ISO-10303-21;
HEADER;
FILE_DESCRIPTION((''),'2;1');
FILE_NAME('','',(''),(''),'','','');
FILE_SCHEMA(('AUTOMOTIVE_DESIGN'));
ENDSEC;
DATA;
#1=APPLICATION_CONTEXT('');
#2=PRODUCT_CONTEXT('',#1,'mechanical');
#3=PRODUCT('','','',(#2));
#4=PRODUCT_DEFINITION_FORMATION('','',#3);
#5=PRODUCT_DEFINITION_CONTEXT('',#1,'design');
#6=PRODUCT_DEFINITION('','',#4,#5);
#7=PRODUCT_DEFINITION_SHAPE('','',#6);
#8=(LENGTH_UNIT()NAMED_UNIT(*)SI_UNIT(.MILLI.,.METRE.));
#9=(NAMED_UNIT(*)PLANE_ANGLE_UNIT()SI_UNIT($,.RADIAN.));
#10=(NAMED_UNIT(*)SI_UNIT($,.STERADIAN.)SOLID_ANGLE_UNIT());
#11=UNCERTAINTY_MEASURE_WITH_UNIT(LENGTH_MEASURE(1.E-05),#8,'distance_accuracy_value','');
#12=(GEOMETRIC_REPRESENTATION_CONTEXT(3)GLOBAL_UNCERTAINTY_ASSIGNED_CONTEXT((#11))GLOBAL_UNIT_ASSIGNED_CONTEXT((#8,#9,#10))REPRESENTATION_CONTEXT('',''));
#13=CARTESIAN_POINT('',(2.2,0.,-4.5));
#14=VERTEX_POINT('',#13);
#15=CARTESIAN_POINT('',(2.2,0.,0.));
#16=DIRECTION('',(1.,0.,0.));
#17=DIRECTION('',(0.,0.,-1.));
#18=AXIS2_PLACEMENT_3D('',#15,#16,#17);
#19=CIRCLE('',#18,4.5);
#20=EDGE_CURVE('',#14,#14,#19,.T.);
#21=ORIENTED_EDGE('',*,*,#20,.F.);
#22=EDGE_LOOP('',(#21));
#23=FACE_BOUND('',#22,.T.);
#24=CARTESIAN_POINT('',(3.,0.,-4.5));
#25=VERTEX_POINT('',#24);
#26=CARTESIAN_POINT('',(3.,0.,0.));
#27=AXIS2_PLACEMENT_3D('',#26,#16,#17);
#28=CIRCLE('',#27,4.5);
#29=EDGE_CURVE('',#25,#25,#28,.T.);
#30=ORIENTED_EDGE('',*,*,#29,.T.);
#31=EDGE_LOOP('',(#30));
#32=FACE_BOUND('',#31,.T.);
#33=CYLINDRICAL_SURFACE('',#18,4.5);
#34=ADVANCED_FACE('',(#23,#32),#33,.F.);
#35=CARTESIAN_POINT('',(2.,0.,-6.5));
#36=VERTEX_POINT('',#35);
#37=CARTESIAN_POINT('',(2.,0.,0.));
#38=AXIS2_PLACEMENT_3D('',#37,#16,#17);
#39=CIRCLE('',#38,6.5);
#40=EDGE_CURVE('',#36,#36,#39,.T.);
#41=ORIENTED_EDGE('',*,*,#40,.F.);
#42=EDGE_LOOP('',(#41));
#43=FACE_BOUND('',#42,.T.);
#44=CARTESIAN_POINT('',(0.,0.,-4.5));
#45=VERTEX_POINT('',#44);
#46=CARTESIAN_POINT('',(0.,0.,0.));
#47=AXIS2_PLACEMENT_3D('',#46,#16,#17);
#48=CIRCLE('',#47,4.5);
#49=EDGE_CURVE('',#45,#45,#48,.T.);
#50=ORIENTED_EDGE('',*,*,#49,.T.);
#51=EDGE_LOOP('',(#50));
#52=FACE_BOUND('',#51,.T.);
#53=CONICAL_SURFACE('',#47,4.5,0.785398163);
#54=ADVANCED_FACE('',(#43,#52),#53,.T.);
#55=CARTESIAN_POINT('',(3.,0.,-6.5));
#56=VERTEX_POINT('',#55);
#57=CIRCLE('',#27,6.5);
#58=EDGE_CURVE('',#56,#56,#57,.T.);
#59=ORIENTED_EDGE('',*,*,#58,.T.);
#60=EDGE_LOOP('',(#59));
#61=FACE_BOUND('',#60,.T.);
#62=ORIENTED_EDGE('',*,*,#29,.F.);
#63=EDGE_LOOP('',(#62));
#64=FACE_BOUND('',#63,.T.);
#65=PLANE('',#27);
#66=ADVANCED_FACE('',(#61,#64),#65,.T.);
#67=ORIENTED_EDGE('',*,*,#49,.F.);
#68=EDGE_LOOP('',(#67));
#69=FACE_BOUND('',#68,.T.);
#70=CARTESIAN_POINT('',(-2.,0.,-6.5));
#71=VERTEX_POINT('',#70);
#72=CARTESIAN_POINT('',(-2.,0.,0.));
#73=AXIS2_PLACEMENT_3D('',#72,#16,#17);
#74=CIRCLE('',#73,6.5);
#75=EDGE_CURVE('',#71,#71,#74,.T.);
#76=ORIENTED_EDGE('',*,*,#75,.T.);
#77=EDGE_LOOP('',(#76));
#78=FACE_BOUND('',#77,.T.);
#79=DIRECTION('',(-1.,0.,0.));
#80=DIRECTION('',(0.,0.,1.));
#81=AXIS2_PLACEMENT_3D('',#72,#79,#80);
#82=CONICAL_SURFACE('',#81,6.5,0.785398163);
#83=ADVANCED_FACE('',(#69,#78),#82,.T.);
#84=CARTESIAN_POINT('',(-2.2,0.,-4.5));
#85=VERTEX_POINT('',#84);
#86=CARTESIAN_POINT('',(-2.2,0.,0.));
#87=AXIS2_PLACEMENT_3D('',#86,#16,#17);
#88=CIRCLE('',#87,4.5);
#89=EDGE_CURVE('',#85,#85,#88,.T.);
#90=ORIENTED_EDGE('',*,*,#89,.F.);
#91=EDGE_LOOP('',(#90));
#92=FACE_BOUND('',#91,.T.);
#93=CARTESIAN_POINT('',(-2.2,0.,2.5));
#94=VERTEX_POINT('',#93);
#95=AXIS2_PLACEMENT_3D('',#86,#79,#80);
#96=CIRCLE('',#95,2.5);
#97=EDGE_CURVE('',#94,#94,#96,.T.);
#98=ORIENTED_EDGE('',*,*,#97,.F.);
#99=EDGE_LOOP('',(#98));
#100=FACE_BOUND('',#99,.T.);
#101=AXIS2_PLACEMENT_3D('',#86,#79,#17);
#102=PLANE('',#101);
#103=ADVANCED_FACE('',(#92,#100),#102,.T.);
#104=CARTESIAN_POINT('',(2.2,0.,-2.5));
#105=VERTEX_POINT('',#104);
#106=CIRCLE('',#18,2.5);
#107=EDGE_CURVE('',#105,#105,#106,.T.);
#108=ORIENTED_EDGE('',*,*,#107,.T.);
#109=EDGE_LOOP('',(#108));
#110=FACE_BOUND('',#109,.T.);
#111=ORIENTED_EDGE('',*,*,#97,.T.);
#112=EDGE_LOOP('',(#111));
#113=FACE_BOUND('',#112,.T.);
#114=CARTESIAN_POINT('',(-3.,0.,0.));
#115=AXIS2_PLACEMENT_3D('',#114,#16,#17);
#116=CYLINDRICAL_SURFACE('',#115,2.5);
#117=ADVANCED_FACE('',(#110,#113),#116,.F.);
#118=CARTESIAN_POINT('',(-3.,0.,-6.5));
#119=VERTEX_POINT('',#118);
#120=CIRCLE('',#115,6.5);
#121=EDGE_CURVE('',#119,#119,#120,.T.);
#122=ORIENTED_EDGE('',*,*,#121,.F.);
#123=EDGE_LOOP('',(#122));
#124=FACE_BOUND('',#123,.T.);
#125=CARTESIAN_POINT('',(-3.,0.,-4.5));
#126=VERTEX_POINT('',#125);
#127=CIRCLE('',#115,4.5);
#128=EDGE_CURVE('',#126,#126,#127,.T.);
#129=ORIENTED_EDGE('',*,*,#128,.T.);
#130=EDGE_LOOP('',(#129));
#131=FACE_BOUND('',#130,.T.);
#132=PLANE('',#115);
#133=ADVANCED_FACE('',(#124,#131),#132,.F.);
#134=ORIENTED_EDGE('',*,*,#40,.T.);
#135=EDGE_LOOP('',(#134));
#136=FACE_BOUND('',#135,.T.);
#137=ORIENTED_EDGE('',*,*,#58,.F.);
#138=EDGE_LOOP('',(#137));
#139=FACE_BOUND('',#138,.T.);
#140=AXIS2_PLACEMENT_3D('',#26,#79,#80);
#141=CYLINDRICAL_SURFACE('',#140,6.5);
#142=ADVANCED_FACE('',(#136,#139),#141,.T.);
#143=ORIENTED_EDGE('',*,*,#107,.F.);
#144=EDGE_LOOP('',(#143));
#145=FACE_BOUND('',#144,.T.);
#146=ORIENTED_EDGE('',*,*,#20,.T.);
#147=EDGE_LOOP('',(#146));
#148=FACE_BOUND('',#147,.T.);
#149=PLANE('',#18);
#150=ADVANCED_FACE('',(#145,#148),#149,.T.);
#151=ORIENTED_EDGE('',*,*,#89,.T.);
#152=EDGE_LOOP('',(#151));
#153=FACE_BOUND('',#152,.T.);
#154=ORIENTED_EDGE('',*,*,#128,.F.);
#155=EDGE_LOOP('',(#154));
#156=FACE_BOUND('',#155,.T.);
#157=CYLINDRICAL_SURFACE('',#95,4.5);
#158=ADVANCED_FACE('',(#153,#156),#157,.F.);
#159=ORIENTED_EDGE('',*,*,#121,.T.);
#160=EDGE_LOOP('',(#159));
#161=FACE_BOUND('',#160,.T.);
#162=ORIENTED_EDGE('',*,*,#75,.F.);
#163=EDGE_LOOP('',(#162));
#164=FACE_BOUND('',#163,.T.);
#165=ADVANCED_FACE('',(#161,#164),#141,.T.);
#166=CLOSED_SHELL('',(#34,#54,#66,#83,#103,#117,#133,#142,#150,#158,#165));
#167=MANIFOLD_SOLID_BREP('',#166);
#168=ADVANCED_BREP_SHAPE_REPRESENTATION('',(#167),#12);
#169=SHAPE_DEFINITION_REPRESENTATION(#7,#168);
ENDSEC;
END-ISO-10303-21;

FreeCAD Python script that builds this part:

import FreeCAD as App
import Part
import Sketcher
from FreeCAD import Vector

doc = App.newDocument("Part")
body = doc.addObject("PartDesign::Body", "Body")

# Sketch on YZ plane
sketch1 = doc.addObject("Sketcher::SketchObject", "Sketch")
body.addObject(sketch1)
sketch1.AttachmentSupport = (doc.YZ_Plane, [""])
sketch1.MapMode = "FlatFace"
sketch1.addGeometry(Part.Circle(Vector(0, 0, 0), Vector(0, 0, 1), 6.5), False)
sketch1.addConstraint(Sketcher.Constraint("Coincident", 0, 3, -1, 1))
sketch1.addConstraint(Sketcher.Constraint("Diameter", 0, 13.0))
pad1 = doc.addObject("PartDesign::Pad", "Pad")
body.addObject(pad1)
pad1.Profile = sketch1
pad1.Length = 6
pad1.Midplane = True

# Sketch on XY plane
sketch2 = doc.addObject("Sketcher::SketchObject", "Sketch001")
body.addObject(sketch2)
sketch2.AttachmentSupport = (doc.XY_Plane, [""])
sketch2.MapMode = "FlatFace"
sketch2.addGeometry(Part.LineSegment(Vector(-2, 6.5, 0), Vector(0, 4.5, 0)), False)
sketch2.addGeometry(Part.LineSegment(Vector(0, 4.5, 0), Vector(2, 6.5, 0)), False)
sketch2.addGeometry(Part.LineSegment(Vector(2, 6.5, 0), Vector(-2, 6.5, 0)), False)
sketch2.addConstraint(Sketcher.Constraint("Coincident", 0, 2, 1, 1))
sketch2.addConstraint(Sketcher.Constraint("Coincident", 1, 2, 2, 1))
sketch2.addConstraint(Sketcher.Constraint("Coincident", 2, 2, 0, 1))
sketch2.addConstraint(Sketcher.Constraint("Horizontal", 2))
sketch2.addConstraint(Sketcher.Constraint("PointOnObject", 0, 2, -2))
sketch2.addConstraint(Sketcher.Constraint("Perpendicular", 0, 1))
sketch2.addConstraint(Sketcher.Constraint("Equal", 0, 1))
sketch2.addConstraint(Sketcher.Constraint("DistanceX", 2, 2, 2, 1, 4.0))
sketch2.addConstraint(Sketcher.Constraint("DistanceY", -1, 1, 0, 2, 4.5))
groove = doc.addObject("PartDesign::Groove", "Groove")
body.addObject(groove)
groove.Profile = sketch2
groove.ReferenceAxis = (sketch2, ["H_Axis"])
groove.Angle = 360

# Sketch on YZ plane
sketch3 = doc.addObject("Sketcher::SketchObject", "Sketch002")
body.addObject(sketch3)
sketch3.AttachmentSupport = (doc.YZ_Plane, [""])
sketch3.MapMode = "FlatFace"
sketch3.AttachmentOffset = App.Placement(Vector(0, 0, 3), App.Rotation())
sketch3.addGeometry(Part.Circle(Vector(0, 0, 0), Vector(0, 0, 1), 4.5), False)
sketch3.addConstraint(Sketcher.Constraint("Coincident", 0, 3, -1, 1))
sketch3.addConstraint(Sketcher.Constraint("Diameter", 0, 9.0))
pocket1 = doc.addObject("PartDesign::Pocket", "Pocket")
body.addObject(pocket1)
pocket1.Profile = sketch3
pocket1.Length = 0.8
doc.recompute()

mirrored = doc.addObject("PartDesign::Mirrored", "Mirrored")
body.addObject(mirrored)
mirrored.Originals = [pocket1]
mirrored.MirrorPlane = (doc.YZ_Plane, [""])
body.Tip = mirrored

# Sketch on YZ plane
sketch4 = doc.addObject("Sketcher::SketchObject", "Sketch003")
body.addObject(sketch4)
sketch4.AttachmentSupport = (doc.YZ_Plane, [""])
sketch4.MapMode = "FlatFace"
sketch4.addGeometry(Part.Circle(Vector(0, 0, 0), Vector(0, 0, 1), 2.5), False)
sketch4.addConstraint(Sketcher.Constraint("Coincident", 0, 3, -1, 1))
sketch4.addConstraint(Sketcher.Constraint("Diameter", 0, 5.0))
pocket2 = doc.addObject("PartDesign::Pocket", "Pocket001")
body.addObject(pocket2)
pocket2.Profile = sketch4
pocket2.Type = "ThroughAll"
pocket2.Midplane = True

doc.recompute()
